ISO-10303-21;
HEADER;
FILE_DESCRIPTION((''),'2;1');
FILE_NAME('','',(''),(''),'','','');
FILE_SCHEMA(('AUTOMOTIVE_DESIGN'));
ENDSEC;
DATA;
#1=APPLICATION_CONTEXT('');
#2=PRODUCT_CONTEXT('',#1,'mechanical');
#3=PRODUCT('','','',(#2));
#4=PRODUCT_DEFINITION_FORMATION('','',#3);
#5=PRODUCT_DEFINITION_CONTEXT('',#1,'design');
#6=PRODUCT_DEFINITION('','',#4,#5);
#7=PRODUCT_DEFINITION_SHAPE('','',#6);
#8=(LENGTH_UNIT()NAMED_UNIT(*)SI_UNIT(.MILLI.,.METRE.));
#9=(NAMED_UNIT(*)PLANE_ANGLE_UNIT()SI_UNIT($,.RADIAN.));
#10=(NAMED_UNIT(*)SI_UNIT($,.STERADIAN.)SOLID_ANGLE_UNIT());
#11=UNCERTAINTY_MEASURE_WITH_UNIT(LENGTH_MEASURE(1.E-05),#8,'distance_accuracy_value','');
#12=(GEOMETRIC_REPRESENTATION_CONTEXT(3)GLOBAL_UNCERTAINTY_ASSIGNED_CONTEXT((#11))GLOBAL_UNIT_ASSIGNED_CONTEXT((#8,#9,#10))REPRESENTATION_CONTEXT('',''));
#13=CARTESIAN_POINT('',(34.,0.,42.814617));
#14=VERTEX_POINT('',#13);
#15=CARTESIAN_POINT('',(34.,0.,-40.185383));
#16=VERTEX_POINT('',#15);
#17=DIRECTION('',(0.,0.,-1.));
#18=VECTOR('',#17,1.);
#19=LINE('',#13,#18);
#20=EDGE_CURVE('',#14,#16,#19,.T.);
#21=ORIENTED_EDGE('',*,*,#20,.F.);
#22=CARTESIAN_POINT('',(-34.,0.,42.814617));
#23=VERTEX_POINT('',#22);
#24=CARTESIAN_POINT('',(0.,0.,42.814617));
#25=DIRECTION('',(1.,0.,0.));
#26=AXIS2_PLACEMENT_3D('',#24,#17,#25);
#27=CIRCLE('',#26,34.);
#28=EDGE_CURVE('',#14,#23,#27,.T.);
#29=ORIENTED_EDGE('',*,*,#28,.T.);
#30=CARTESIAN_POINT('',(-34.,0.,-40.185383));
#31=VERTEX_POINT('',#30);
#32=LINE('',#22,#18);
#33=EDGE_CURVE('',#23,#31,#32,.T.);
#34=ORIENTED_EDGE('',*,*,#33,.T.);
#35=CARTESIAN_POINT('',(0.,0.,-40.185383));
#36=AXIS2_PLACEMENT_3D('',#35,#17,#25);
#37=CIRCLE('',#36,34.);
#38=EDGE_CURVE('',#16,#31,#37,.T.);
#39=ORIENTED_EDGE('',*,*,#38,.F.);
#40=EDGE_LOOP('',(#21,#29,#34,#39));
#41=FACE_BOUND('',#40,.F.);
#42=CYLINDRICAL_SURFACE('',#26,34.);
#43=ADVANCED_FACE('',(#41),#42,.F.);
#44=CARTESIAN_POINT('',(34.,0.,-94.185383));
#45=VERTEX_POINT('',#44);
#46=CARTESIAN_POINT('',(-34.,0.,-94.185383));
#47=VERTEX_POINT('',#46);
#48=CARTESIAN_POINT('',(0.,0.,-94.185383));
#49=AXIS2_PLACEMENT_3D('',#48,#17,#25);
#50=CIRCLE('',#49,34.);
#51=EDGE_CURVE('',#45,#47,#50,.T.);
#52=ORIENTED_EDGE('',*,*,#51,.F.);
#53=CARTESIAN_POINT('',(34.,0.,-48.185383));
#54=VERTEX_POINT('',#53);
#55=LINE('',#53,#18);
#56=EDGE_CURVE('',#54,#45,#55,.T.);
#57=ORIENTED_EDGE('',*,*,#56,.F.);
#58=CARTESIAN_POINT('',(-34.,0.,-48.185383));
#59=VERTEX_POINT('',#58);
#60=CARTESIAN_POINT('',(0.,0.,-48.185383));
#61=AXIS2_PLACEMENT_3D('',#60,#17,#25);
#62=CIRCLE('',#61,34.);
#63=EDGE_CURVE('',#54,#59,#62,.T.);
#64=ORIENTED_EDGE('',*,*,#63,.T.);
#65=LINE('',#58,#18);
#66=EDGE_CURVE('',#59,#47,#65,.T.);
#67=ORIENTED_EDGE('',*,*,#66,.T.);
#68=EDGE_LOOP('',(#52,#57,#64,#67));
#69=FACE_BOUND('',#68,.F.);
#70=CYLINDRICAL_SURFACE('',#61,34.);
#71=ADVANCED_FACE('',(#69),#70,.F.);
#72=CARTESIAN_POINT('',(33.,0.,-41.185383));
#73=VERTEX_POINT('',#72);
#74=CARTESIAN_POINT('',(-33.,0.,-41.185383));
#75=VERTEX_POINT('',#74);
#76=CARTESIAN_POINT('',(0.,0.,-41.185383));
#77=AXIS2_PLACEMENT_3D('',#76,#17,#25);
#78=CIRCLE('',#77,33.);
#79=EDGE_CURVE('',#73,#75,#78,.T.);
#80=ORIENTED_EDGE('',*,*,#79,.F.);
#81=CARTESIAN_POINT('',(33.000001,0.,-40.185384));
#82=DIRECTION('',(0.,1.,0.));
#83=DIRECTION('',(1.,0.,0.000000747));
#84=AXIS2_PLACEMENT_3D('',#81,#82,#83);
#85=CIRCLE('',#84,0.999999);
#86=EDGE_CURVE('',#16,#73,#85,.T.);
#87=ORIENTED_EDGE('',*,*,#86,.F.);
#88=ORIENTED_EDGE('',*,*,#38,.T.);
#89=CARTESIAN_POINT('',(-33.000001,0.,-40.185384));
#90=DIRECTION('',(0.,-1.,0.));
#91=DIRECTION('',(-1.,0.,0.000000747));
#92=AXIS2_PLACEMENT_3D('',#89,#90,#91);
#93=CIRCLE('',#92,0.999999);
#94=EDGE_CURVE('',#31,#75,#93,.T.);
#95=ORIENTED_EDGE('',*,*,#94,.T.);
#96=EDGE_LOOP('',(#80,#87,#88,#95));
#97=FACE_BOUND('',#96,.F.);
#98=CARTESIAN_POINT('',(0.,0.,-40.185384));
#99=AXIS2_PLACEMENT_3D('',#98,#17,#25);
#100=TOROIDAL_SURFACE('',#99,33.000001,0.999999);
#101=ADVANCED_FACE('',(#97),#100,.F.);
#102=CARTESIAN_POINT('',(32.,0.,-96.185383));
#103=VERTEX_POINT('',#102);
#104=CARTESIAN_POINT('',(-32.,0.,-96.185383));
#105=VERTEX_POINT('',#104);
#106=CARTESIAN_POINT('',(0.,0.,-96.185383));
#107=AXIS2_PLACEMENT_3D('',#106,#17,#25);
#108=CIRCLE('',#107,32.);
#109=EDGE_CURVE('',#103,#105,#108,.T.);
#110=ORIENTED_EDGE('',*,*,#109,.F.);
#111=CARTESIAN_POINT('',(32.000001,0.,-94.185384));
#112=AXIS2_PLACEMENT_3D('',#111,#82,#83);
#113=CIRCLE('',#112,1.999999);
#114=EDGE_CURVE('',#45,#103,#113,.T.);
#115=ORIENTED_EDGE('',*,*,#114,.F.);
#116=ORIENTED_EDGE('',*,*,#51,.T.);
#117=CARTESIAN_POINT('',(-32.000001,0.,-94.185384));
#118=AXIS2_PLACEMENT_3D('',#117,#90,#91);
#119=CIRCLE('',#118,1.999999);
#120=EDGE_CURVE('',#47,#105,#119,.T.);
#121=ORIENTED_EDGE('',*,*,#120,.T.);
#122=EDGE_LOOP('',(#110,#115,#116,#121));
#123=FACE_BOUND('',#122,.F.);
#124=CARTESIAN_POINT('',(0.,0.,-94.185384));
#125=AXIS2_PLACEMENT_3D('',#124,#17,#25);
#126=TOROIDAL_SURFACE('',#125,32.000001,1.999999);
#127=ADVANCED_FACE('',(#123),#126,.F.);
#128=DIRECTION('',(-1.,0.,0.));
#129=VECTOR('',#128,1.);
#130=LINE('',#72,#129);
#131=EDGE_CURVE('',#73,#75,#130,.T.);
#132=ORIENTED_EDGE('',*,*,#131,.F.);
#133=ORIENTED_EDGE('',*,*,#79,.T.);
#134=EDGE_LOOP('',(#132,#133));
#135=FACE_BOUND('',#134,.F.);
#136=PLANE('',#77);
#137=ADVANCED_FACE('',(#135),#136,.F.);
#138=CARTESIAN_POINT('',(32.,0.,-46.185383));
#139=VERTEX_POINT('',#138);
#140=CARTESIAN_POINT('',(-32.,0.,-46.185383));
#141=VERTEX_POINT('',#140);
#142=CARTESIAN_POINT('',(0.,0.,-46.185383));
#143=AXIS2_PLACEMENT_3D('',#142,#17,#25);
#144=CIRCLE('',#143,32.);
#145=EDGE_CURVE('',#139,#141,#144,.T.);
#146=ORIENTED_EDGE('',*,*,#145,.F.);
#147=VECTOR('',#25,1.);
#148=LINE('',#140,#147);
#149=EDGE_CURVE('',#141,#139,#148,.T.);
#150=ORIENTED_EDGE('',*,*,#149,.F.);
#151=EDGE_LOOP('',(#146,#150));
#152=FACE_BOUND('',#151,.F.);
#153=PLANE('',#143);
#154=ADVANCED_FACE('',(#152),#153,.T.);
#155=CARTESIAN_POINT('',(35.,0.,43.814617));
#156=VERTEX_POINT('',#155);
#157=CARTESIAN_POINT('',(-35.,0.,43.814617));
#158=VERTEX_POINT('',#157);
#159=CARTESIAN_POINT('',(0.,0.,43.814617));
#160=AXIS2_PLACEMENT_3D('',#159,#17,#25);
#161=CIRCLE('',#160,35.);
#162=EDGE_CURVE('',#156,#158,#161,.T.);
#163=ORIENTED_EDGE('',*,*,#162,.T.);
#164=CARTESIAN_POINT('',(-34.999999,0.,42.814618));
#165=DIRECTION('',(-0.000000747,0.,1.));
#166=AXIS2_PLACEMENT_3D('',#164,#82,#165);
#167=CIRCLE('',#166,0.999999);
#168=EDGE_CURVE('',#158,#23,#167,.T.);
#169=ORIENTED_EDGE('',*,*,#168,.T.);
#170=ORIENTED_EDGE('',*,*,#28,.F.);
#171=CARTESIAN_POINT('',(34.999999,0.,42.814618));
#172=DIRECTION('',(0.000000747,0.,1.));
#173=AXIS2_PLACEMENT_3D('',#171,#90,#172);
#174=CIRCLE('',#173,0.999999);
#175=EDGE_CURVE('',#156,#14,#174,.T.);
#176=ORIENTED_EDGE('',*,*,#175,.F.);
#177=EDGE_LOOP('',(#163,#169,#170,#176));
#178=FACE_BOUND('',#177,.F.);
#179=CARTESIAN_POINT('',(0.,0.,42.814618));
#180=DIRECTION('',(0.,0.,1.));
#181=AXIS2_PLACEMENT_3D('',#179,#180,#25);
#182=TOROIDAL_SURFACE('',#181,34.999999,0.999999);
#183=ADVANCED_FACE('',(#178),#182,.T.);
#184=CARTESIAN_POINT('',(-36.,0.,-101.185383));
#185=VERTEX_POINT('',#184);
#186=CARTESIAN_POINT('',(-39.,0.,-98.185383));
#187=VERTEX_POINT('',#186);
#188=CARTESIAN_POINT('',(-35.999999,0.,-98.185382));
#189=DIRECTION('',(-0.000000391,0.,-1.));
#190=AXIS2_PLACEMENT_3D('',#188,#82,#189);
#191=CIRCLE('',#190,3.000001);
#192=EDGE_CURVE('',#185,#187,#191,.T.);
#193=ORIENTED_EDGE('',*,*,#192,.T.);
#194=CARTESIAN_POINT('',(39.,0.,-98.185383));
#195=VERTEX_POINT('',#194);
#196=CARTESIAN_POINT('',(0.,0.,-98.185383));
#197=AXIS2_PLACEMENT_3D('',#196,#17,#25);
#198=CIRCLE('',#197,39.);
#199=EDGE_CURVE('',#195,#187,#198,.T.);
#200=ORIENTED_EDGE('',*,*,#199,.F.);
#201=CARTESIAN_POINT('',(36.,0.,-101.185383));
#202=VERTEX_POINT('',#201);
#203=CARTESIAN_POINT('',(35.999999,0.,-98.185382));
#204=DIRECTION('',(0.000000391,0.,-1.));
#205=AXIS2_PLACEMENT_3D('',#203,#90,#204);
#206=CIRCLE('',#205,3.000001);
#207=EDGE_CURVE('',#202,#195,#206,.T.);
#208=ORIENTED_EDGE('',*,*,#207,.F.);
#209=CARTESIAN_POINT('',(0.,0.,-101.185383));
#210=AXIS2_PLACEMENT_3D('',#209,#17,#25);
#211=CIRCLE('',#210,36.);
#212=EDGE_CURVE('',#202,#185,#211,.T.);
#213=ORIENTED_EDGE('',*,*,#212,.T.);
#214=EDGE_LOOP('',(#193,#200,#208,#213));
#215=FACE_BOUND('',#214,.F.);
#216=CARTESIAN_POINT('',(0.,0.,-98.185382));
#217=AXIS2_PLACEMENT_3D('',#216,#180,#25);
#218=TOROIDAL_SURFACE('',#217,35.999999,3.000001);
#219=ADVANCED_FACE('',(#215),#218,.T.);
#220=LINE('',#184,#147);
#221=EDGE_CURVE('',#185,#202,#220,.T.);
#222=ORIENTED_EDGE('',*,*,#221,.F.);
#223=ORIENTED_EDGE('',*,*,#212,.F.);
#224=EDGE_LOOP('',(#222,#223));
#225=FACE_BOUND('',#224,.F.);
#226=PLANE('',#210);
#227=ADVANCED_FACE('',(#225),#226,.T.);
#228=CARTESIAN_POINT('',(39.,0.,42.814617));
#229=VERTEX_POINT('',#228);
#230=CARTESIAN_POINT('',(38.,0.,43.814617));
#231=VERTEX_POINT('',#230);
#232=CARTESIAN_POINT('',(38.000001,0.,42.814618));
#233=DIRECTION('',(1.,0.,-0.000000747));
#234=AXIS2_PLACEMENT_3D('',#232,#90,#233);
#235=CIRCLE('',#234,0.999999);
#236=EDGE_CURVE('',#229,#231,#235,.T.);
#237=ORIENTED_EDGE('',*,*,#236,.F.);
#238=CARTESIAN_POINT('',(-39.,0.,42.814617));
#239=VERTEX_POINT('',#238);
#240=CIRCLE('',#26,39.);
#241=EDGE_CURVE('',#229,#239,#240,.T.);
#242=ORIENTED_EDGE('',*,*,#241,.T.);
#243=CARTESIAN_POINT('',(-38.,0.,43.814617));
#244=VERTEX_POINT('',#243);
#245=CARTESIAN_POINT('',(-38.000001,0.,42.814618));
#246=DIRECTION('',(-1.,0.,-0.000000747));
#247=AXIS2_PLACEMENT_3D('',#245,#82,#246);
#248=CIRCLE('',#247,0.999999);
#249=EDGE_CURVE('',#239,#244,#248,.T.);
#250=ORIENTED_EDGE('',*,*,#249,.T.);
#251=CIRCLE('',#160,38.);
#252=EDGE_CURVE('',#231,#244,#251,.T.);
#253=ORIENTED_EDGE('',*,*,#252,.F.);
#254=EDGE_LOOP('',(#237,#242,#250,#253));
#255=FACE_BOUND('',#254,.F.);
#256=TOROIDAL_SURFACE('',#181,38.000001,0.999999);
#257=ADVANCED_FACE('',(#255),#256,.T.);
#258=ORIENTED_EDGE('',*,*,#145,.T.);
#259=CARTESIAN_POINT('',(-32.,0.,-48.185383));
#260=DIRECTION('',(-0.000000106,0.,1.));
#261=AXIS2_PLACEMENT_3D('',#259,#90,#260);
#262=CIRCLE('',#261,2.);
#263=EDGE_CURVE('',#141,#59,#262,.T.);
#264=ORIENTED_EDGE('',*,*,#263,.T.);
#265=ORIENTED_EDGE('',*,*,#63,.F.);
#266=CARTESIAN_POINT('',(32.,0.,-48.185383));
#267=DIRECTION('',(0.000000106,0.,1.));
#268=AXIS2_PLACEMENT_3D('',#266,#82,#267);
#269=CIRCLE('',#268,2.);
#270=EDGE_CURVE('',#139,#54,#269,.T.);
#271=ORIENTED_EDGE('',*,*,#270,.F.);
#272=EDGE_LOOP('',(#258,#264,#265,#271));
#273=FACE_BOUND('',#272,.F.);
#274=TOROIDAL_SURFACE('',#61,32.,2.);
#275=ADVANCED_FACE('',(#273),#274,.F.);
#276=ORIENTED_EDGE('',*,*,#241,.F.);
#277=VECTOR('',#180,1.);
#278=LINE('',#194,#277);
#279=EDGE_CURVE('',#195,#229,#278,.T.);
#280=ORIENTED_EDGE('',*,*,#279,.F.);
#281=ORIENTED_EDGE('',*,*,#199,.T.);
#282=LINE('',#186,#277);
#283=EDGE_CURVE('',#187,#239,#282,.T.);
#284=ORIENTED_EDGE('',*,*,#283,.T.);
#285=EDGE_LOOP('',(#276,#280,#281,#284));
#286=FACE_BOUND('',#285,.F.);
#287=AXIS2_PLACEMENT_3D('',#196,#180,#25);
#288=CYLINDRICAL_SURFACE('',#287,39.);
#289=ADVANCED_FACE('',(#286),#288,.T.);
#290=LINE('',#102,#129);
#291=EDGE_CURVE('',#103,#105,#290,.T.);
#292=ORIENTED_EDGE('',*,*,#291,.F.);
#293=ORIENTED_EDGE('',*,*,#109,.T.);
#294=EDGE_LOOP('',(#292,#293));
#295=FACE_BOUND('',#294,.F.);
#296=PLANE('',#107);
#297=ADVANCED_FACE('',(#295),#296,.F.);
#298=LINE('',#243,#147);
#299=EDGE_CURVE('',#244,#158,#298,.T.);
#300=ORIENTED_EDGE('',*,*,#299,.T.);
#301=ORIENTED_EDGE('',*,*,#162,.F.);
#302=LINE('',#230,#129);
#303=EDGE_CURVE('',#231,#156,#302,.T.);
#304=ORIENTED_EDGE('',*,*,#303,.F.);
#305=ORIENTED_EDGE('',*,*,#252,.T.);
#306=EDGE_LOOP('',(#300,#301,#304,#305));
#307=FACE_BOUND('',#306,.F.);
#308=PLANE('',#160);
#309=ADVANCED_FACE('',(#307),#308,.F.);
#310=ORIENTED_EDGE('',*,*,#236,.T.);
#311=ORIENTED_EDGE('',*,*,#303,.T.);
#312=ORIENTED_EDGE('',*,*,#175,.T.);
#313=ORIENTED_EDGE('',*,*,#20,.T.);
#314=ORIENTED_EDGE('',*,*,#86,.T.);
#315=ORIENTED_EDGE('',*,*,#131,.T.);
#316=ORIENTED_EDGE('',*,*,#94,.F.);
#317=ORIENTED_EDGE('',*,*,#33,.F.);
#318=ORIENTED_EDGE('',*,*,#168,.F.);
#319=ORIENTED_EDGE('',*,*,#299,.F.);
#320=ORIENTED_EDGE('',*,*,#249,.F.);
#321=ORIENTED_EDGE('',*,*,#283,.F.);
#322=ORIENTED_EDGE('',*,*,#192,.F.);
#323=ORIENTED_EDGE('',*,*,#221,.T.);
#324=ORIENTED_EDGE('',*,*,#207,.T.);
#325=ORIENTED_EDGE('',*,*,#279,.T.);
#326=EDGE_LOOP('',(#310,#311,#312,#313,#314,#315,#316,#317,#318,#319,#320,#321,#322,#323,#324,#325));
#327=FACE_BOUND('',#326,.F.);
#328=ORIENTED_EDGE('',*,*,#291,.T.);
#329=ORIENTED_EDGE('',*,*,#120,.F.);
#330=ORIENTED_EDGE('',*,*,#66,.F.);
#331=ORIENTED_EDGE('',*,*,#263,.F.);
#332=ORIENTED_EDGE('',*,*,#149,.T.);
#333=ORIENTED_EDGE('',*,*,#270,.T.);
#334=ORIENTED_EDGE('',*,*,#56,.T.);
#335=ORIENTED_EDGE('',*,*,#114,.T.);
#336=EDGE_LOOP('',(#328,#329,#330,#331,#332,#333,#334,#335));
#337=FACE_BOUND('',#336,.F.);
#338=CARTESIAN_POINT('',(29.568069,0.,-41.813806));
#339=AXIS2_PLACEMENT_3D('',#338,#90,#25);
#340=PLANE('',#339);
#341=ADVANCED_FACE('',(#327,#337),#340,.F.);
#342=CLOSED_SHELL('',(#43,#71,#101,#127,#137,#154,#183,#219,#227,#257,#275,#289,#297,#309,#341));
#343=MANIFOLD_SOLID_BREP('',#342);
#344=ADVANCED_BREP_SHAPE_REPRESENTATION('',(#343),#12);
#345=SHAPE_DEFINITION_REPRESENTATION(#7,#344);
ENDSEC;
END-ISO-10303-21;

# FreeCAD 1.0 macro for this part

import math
import FreeCAD as App
import Part
import Sketcher
Q = App.Units.Quantity

doc = App.newDocument("Part")
params = doc.addObject("Spreadsheet::Sheet", "Params")
for row, (alias, value) in enumerate([
    ("sketch1_radius", "0.999999 mm"),
    ("sketch1_radius2", "2 mm"),
    ("sketch1_radius3", "3.000001 mm"),
    ("sketch1_width", "3 mm"),
    ("sketch1_width2", "33 mm"),
    ("revolution_angle", "180 deg"),
], start=1):
    params.set(f"A{row}", alias)
    params.set(f"B{row}", "=" + value)
    params.setAlias(f"B{row}", alias)

body = doc.addObject("PartDesign::Body", "Body")

# Sketch on XZ plane
sketch1 = doc.addObject("Sketcher::SketchObject", "Sketch")
body.addObject(sketch1)
sketch1.AttachmentSupport = (doc.XZ_Plane, [""])
sketch1.MapMode = "FlatFace"
sketch1.addGeometry(Part.ArcOfCircle(Part.Circle(App.Vector(38, 42.8, 0), App.Vector(0, 0, 1), 1), math.radians(0), math.radians(90)), False)
sketch1.addGeometry(Part.LineSegment(App.Vector(38, 43.8, 0), App.Vector(35, 43.8, 0)), False)
sketch1.addGeometry(Part.ArcOfCircle(Part.Circle(App.Vector(35, 42.8, 0), App.Vector(0, 0, 1), 1), math.radians(90), math.radians(180)), False)
sketch1.addGeometry(Part.LineSegment(App.Vector(34, 42.8, 0), App.Vector(34, -40.2, 0)), False)
sketch1.addGeometry(Part.ArcOfCircle(Part.Circle(App.Vector(33, -40.2, 0), App.Vector(0, 0, 1), 1), math.radians(-90), math.radians(0)), False)
sketch1.addGeometry(Part.LineSegment(App.Vector(33, -41.2, 0), App.Vector(0, -41.2, 0)), False)
sketch1.addGeometry(Part.LineSegment(App.Vector(0, -41.2, 0), App.Vector(0, -46.2, 0)), False)
sketch1.addGeometry(Part.LineSegment(App.Vector(0, -46.2, 0), App.Vector(32, -46.2, 0)), False)
sketch1.addGeometry(Part.ArcOfCircle(Part.Circle(App.Vector(32, -48.2, 0), App.Vector(0, 0, 1), 2), math.radians(0), math.radians(90)), False)
sketch1.addGeometry(Part.LineSegment(App.Vector(34, -48.2, 0), App.Vector(34, -94.2, 0)), False)
sketch1.addGeometry(Part.ArcOfCircle(Part.Circle(App.Vector(32, -94.2, 0), App.Vector(0, 0, 1), 2), math.radians(-90), math.radians(0)), False)
sketch1.addGeometry(Part.LineSegment(App.Vector(32, -96.2, 0), App.Vector(0, -96.2, 0)), False)
sketch1.addGeometry(Part.LineSegment(App.Vector(0, -96.2, 0), App.Vector(0, -101.2, 0)), False)
sketch1.addGeometry(Part.LineSegment(App.Vector(0, -101.2, 0), App.Vector(36, -101.2, 0)), False)
sketch1.addGeometry(Part.ArcOfCircle(Part.Circle(App.Vector(36, -98.2, 0), App.Vector(0, 0, 1), 3), math.radians(-90), math.radians(0)), False)
sketch1.addGeometry(Part.LineSegment(App.Vector(39, -98.2, 0), App.Vector(39, 42.8, 0)), False)
sketch1.addConstraint(Sketcher.Constraint("Tangent", 0, 2, 1, 1))
sketch1.addConstraint(Sketcher.Constraint("Tangent", 1, 2, 2, 1))
sketch1.addConstraint(Sketcher.Constraint("Tangent", 2, 2, 3, 1))
sketch1.addConstraint(Sketcher.Constraint("Tangent", 3, 2, 4, 2))
sketch1.addConstraint(Sketcher.Constraint("Tangent", 4, 1, 5, 1))
sketch1.addConstraint(Sketcher.Constraint("Coincident", 5, 2, 6, 1))
sketch1.addConstraint(Sketcher.Constraint("Coincident", 6, 2, 7, 1))
sketch1.addConstraint(Sketcher.Constraint("Tangent", 7, 2, 8, 2))
sketch1.addConstraint(Sketcher.Constraint("Tangent", 8, 1, 9, 1))
sketch1.addConstraint(Sketcher.Constraint("Tangent", 9, 2, 10, 2))
sketch1.addConstraint(Sketcher.Constraint("Tangent", 10, 1, 11, 1))
sketch1.addConstraint(Sketcher.Constraint("Coincident", 11, 2, 12, 1))
sketch1.addConstraint(Sketcher.Constraint("Coincident", 12, 2, 13, 1))
sketch1.addConstraint(Sketcher.Constraint("Tangent", 13, 2, 14, 1))
sketch1.addConstraint(Sketcher.Constraint("Tangent", 14, 2, 15, 1))
sketch1.addConstraint(Sketcher.Constraint("Tangent", 15, 2, 0, 1))
sketch1.addConstraint(Sketcher.Constraint("Horizontal", 1))
sketch1.addConstraint(Sketcher.Constraint("Vertical", 3))
sketch1.addConstraint(Sketcher.Constraint("Horizontal", 5))
sketch1.addConstraint(Sketcher.Constraint("Vertical", 6))
sketch1.addConstraint(Sketcher.Constraint("Horizontal", 7))
sketch1.addConstraint(Sketcher.Constraint("Vertical", 9))
sketch1.addConstraint(Sketcher.Constraint("Horizontal", 11))
sketch1.addConstraint(Sketcher.Constraint("Vertical", 12))
sketch1.addConstraint(Sketcher.Constraint("Horizontal", 13))
sketch1.addConstraint(Sketcher.Constraint("Vertical", 15))
sketch1.addConstraint(Sketcher.Constraint("Equal", 0, 2))
sketch1.addConstraint(Sketcher.Constraint("Equal", 2, 4))
sketch1.addConstraint(Sketcher.Constraint("Equal", 8, 10))
sketch1.addConstraint(Sketcher.Constraint("PointOnObject", 5, 2, -2))
sketch1.addConstraint(Sketcher.Constraint("PointOnObject", 11, 2, -2))
sketch1.addConstraint(Sketcher.Constraint("Vertical", 3, 2, 8, 1))
sketch1.addConstraint(Sketcher.Constraint("Equal", 6, 12))
sketch1.addConstraint(Sketcher.Constraint("Radius", 0, Q("0.999999 mm")))
sketch1.addConstraint(Sketcher.Constraint("Radius", 8, Q("2 mm")))
sketch1.addConstraint(Sketcher.Constraint("Radius", 14, Q("3.000001 mm")))
sketch1.addConstraint(Sketcher.Constraint("DistanceX", 1, 2, 1, 1, Q("3 mm")))
sketch1.addConstraint(Sketcher.Constraint("DistanceX", 5, 2, 5, 1, Q("33 mm")))
sketch1.addConstraint(Sketcher.Constraint("DistanceY", 3, 2, 3, 1, Q("83 mm")))
sketch1.addConstraint(Sketcher.Constraint("DistanceY", 6, 2, 6, 1, Q("5 mm")))
sketch1.addConstraint(Sketcher.Constraint("DistanceY", 9, 2, 9, 1, Q("46 mm")))
sketch1.addConstraint(Sketcher.Constraint("DistanceY", 14, 3, -1, 1, Q("98.185382 mm")))
sketch1.setExpression("Constraints[33]", "Params.sketch1_radius")
sketch1.setExpression("Constraints[34]", "Params.sketch1_radius2")
sketch1.setExpression("Constraints[35]", "Params.sketch1_radius3")
sketch1.setExpression("Constraints[36]", "Params.sketch1_width")
sketch1.setExpression("Constraints[37]", "Params.sketch1_width2")
revolution = doc.addObject("PartDesign::Revolution", "Revolution")
body.addObject(revolution)
revolution.Profile = sketch1
revolution.ReferenceAxis = (sketch1, ["V_Axis"])
revolution.setExpression("Angle", "Params.revolution_angle")
revolution.Reversed = True

doc.recompute()
